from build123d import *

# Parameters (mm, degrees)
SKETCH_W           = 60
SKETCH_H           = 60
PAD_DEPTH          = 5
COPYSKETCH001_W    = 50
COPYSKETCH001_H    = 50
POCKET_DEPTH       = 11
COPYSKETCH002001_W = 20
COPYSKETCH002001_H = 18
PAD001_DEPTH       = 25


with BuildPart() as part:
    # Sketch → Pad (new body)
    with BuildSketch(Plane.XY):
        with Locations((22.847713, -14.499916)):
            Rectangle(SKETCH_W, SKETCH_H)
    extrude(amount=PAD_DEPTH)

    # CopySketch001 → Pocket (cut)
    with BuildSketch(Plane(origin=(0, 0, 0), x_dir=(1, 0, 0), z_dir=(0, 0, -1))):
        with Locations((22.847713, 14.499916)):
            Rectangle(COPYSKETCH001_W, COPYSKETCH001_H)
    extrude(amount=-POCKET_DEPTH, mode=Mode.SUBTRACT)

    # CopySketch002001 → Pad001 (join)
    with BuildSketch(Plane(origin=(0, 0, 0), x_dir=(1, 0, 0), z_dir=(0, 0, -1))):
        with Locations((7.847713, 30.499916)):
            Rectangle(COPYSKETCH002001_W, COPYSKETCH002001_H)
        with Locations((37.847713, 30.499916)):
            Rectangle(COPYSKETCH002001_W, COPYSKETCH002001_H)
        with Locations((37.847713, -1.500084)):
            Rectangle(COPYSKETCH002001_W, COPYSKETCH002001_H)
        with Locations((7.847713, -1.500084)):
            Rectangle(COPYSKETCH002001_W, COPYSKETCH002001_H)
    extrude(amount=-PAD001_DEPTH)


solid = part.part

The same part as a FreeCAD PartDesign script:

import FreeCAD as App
import Part
import Sketcher
from FreeCAD import Vector


def add_polygon(sketch, points):
    """Adds a closed chain of lines whose ends are joined by coincident constraints."""
    first, n = sketch.GeometryCount, len(points)
    for a, b in zip(points, points[1:] + points[:1]):
        sketch.addGeometry(Part.LineSegment(App.Vector(*a, 0), App.Vector(*b, 0)), False)
    for i in range(n):
        sketch.addConstraint(Sketcher.Constraint("Coincident", first + i, 2, first + (i + 1) % n, 1))

doc = App.newDocument("Part")
params = doc.addObject("Spreadsheet::Sheet", "Params")
for row, (alias, value) in enumerate([
    ("sketch1_width", "60 mm"),
    ("pad1_length", "5 mm"),
    ("sketch2_width", "50 mm"),
    ("pocket1_length", "11 mm"),
    ("sketch3_width", "20 mm"),
    ("sketch3_height", "18 mm"),
    ("pad2_length", "25 mm"),
], start=1):
    params.set(f"A{row}", alias)
    params.set(f"B{row}", "=" + value)
    params.setAlias(f"B{row}", alias)

body = doc.addObject("PartDesign::Body", "Body")

sketch1 = body.newObject("Sketcher::SketchObject", "Sketch")
sketch1.AttachmentSupport = (doc.getObject("XY_Plane"), [""])
sketch1.MapMode = "FlatFace"
add_polygon(sketch1, [(-7, 16), (-7, -44), (53, -44), (53, 16)])
sketch1.addConstraint(Sketcher.Constraint("Vertical", 0))
sketch1.addConstraint(Sketcher.Constraint("Horizontal", 1))
sketch1.addConstraint(Sketcher.Constraint("Vertical", 2))
sketch1.addConstraint(Sketcher.Constraint("Horizontal", 3))
sketch1.addConstraint(Sketcher.Constraint("Equal", 3, 0))
sketch1.addConstraint(Sketcher.Constraint("DistanceX", 1, 1, 1, 2, 60.0))
sketch1.addConstraint(Sketcher.Constraint("DistanceX", 0, 2, -1, 1, 7.152287))
sketch1.addConstraint(Sketcher.Constraint("DistanceY", 0, 2, -1, 1, 44.499916))
sketch1.setExpression("Constraints[9]", "Params.sketch1_width")
pad1 = body.newObject("PartDesign::Pad", "Pad")
pad1.Profile = sketch1
pad1.setExpression("Length", "Params.pad1_length")

sketch2 = body.newObject("Sketcher::SketchObject", "Sketch001")
sketch2.AttachmentSupport = (doc.getObject("XY_Plane"), [""])
sketch2.MapMode = "FlatFace"
add_polygon(sketch2, [(-2, -39), (-2, 11), (48, 11), (48, -39)])
sketch2.addConstraint(Sketcher.Constraint("Vertical", 0))
sketch2.addConstraint(Sketcher.Constraint("Horizontal", 1))
sketch2.addConstraint(Sketcher.Constraint("Vertical", 2))
sketch2.addConstraint(Sketcher.Constraint("Horizontal", 3))
sketch2.addConstraint(Sketcher.Constraint("Equal", 3, 0))
sketch2.addConstraint(Sketcher.Constraint("DistanceX", 1, 1, 1, 2, 50.0))
sketch2.addConstraint(Sketcher.Constraint("DistanceX", 0, 2, -1, 1, 2.152287))
sketch2.addConstraint(Sketcher.Constraint("DistanceY", -1, 1, 0, 2, 10.500084))
sketch2.setExpression("Constraints[9]", "Params.sketch2_width")
pocket1 = body.newObject("PartDesign::Pocket", "Pocket")
pocket1.Profile = sketch2
pocket1.setExpression("Length", "Params.pocket1_length")
pocket1.Reversed = True

sketch3 = body.newObject("Sketcher::SketchObject", "Sketch002")
sketch3.AttachmentSupport = (doc.getObject("XY_Plane"), [""])
sketch3.MapMode = "FlatFace"
add_polygon(sketch3, [(-2, -39), (-2, -21), (18, -21), (18, -39)])
add_polygon(sketch3, [(28, -39), (28, -21), (48, -21), (48, -39)])
add_polygon(sketch3, [(28, -7), (28, 11), (48, 11), (48, -7)])
add_polygon(sketch3, [(-2, -7), (-2, 11), (18, 11), (18, -7)])
sketch3.addConstraint(Sketcher.Constraint("Vertical", 0))
sketch3.addConstraint(Sketcher.Constraint("Horizontal", 1))
sketch3.addConstraint(Sketcher.Constraint("Vertical", 2))
sketch3.addConstraint(Sketcher.Constraint("Horizontal", 3))
sketch3.addConstraint(Sketcher.Constraint("Vertical", 4))
sketch3.addConstraint(Sketcher.Constraint("Horizontal", 5))
sketch3.addConstraint(Sketcher.Constraint("Vertical", 6))
sketch3.addConstraint(Sketcher.Constraint("Horizontal", 7))
sketch3.addConstraint(Sketcher.Constraint("Vertical", 8))
sketch3.addConstraint(Sketcher.Constraint("Horizontal", 9))
sketch3.addConstraint(Sketcher.Constraint("Vertical", 10))
sketch3.addConstraint(Sketcher.Constraint("Horizontal", 11))
sketch3.addConstraint(Sketcher.Constraint("Vertical", 12))
sketch3.addConstraint(Sketcher.Constraint("Horizontal", 13))
sketch3.addConstraint(Sketcher.Constraint("Vertical", 14))
sketch3.addConstraint(Sketcher.Constraint("Horizontal", 15))
sketch3.addConstraint(Sketcher.Constraint("Horizontal", 1, 2, 4, 2))
sketch3.addConstraint(Sketcher.Constraint("Horizontal", 3, 2, 6, 2))
sketch3.addConstraint(Sketcher.Constraint("Horizontal", 9, 2, 12, 2))
sketch3.addConstraint(Sketcher.Constraint("Horizontal", 11, 2, 14, 2))
sketch3.addConstraint(Sketcher.Constraint("Vertical", 7, 2, 8, 2))
sketch3.addConstraint(Sketcher.Constraint("Vertical", 6, 2, 9, 2))
sketch3.addConstraint(Sketcher.Constraint("Vertical", 3, 2, 12, 2))
sketch3.addConstraint(Sketcher.Constraint("Vertical", 2, 2, 13, 2))
sketch3.addConstraint(Sketcher.Constraint("Equal", 3, 5))
sketch3.addConstraint(Sketcher.Constraint("Equal", 6, 8))
sketch3.addConstraint(Sketcher.Constraint("DistanceX", 1, 1, 1, 2, 20.0))
sketch3.addConstraint(Sketcher.Constraint("DistanceY", 0, 1, 0, 2, 18.0))
sketch3.addConstraint(Sketcher.Constraint("DistanceX", 1, 2, 4, 2, 10.0))
sketch3.addConstraint(Sketcher.Constraint("DistanceY", 4, 2, 8, 2, 32.0))
sketch3.addConstraint(Sketcher.Constraint("DistanceX", 0, 2, -1, 1, 2.152287))
sketch3.addConstraint(Sketcher.Constraint("DistanceY", 0, 2, -1, 1, 21.499916))
sketch3.setExpression("Constraints[42]", "Params.sketch3_width")
sketch3.setExpression("Constraints[43]", "Params.sketch3_height")
pad2 = body.newObject("PartDesign::Pad", "Pad001")
pad2.Profile = sketch3
pad2.setExpression("Length", "Params.pad2_length")

doc.recompute()
